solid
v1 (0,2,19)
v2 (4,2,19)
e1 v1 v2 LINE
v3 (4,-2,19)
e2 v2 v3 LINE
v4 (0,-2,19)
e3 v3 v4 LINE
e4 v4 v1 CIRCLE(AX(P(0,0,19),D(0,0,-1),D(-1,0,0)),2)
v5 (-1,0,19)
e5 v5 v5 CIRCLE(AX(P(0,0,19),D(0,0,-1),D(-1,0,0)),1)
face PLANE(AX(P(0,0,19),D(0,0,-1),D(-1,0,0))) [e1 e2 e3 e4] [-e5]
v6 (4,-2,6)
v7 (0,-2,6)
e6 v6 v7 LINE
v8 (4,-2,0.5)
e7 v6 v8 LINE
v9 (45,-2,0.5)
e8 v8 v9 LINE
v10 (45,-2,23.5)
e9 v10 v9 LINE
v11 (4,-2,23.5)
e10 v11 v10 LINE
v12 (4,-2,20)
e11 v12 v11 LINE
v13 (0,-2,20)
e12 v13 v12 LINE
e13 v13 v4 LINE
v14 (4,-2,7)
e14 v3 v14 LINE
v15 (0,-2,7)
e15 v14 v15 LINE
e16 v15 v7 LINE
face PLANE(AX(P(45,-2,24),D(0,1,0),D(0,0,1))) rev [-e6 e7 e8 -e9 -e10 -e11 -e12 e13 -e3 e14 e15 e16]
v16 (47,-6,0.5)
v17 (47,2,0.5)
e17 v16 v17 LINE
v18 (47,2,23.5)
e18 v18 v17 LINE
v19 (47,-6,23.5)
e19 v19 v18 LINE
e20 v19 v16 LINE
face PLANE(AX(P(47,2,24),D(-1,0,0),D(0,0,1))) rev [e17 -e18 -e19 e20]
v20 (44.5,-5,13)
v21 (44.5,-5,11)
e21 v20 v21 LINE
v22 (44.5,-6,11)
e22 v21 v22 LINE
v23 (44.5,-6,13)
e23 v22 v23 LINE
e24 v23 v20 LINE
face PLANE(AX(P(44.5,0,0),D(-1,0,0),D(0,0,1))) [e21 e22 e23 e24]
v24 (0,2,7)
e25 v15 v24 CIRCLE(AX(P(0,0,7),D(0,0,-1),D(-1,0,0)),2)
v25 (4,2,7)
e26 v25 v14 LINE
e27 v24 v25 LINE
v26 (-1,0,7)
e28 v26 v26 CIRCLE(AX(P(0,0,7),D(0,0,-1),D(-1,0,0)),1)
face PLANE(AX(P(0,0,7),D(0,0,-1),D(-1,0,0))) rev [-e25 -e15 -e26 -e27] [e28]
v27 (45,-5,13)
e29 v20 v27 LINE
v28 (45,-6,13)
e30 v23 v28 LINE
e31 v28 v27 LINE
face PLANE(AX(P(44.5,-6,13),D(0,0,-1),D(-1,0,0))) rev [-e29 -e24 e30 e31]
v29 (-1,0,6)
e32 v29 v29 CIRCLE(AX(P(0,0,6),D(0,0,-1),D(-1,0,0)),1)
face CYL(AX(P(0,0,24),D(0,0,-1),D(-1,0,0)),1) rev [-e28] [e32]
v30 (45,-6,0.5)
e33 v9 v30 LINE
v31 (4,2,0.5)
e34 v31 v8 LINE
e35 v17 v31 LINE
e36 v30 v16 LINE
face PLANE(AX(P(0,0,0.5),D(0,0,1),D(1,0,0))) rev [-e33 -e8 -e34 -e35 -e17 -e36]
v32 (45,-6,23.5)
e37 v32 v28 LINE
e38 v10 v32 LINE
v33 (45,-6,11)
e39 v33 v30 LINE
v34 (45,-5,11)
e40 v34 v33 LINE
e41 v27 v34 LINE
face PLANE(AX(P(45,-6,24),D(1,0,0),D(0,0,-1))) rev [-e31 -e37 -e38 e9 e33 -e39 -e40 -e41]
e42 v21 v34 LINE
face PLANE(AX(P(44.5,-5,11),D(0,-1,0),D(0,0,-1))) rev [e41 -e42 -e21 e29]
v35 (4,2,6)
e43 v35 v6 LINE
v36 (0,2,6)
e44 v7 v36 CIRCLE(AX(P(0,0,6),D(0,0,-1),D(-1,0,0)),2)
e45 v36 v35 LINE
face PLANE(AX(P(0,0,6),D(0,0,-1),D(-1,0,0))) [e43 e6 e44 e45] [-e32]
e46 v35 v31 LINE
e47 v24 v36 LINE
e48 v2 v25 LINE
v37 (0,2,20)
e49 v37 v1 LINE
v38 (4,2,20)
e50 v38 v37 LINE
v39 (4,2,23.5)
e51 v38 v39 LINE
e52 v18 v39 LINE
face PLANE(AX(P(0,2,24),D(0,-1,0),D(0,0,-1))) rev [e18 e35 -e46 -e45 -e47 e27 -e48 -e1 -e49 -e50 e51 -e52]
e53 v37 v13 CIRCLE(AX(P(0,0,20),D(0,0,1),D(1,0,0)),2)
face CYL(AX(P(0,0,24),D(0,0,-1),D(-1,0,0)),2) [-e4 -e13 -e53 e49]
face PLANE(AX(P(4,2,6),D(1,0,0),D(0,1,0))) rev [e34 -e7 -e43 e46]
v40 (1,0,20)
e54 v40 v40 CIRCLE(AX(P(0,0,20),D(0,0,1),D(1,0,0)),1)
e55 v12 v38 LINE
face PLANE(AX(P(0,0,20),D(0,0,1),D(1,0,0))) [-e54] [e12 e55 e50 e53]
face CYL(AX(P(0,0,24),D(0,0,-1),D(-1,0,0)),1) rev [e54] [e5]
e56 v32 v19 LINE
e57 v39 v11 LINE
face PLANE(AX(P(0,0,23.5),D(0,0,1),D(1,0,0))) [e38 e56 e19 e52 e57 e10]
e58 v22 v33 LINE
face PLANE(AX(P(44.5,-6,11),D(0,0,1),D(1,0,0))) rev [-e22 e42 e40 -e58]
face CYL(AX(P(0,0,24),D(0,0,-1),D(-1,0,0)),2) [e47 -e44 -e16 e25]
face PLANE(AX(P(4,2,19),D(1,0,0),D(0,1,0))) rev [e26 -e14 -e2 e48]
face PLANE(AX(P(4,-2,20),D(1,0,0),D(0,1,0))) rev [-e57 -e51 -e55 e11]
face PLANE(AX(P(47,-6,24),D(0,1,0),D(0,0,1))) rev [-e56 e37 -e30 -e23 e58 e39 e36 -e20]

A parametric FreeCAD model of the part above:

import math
import FreeCAD as App
import Part
import Sketcher
Q = App.Units.Quantity


def add_polygon(sketch, points):
    """Adds a closed chain of lines whose ends are joined by coincident constraints."""
    first, n = sketch.GeometryCount, len(points)
    for a, b in zip(points, points[1:] + points[:1]):
        sketch.addGeometry(Part.LineSegment(App.Vector(*a, 0), App.Vector(*b, 0)), False)
    for i in range(n):
        sketch.addConstraint(Sketcher.Constraint("Coincident", first + i, 2, first + (i + 1) % n, 1))

doc = App.newDocument("Part")
body = doc.addObject("PartDesign::Body", "Body")

sketch1 = body.newObject("Sketcher::SketchObject", "Sketch")
sketch1.AttachmentSupport = (doc.getObject("XY_Plane"), [""])
sketch1.MapMode = "FlatFace"
sketch1.addGeometry(Part.LineSegment(App.Vector(47, 2, 0), App.Vector(0, 2, 0)), False)
sketch1.addGeometry(Part.ArcOfCircle(Part.Circle(App.Vector(0, 0, 0), App.Vector(0, 0, 1), 2), math.radians(90), math.radians(270)), False)
sketch1.addGeometry(Part.LineSegment(App.Vector(0, -2, 0), App.Vector(45, -2, 0)), False)
sketch1.addGeometry(Part.LineSegment(App.Vector(45, -2, 0), App.Vector(45, -6, 0)), False)
sketch1.addGeometry(Part.LineSegment(App.Vector(45, -6, 0), App.Vector(47, -6, 0)), False)
sketch1.addGeometry(Part.LineSegment(App.Vector(47, -6, 0), App.Vector(47, 2, 0)), False)
sketch1.addGeometry(Part.Circle(App.Vector(0, 0, 0), App.Vector(0, 0, 1), 1), False)
sketch1.addConstraint(Sketcher.Constraint("Tangent", 0, 2, 1, 1))
sketch1.addConstraint(Sketcher.Constraint("Tangent", 1, 2, 2, 1))
sketch1.addConstraint(Sketcher.Constraint("Coincident", 2, 2, 3, 1))
sketch1.addConstraint(Sketcher.Constraint("Coincident", 3, 2, 4, 1))
sketch1.addConstraint(Sketcher.Constraint("Coincident", 4, 2, 5, 1))
sketch1.addConstraint(Sketcher.Constraint("Coincident", 5, 2, 0, 1))
sketch1.addConstraint(Sketcher.Constraint("Horizontal", 0))
sketch1.addConstraint(Sketcher.Constraint("Horizontal", 2))
sketch1.addConstraint(Sketcher.Constraint("Vertical", 3))
sketch1.addConstraint(Sketcher.Constraint("Horizontal", 4))
sketch1.addConstraint(Sketcher.Constraint("Vertical", 5))
sketch1.addConstraint(Sketcher.Constraint("Coincident", 1, 3, -1, 1))
sketch1.addConstraint(Sketcher.Constraint("Coincident", 6, 3, -1, 1))
sketch1.addConstraint(Sketcher.Constraint("Diameter", 6, Q("2 mm")))
sketch1.addConstraint(Sketcher.Constraint("Radius", 1, Q("2 mm")))
sketch1.addConstraint(Sketcher.Constraint("DistanceX", 0, 2, 0, 1, Q("47 mm")))
sketch1.addConstraint(Sketcher.Constraint("DistanceX", 2, 1, 2, 2, Q("45 mm")))
sketch1.addConstraint(Sketcher.Constraint("DistanceY", 3, 2, 3, 1, Q("4 mm")))
pad1 = body.newObject("PartDesign::Pad", "Pad")
pad1.Profile = sketch1
pad1.Length = 24

sketch2 = body.newObject("Sketcher::SketchObject", "Sketch001")
sketch2.AttachmentSupport = (doc.getObject("XY_Plane"), [""])
sketch2.MapMode = "FlatFace"
sketch2.AttachmentOffset = App.Placement(App.Vector(0, 0, 24), App.Rotation())
add_polygon(sketch2, [(-4, 2), (-4, -2), (4, -2), (4, 2)])
sketch2.addConstraint(Sketcher.Constraint("Vertical", 0))
sketch2.addConstraint(Sketcher.Constraint("Horizontal", 1))
sketch2.addConstraint(Sketcher.Constraint("Vertical", 2))
sketch2.addConstraint(Sketcher.Constraint("Horizontal", 3))
sketch2.addConstraint(Sketcher.Constraint("Symmetric", 0, 2, 2, 2, -1, 1))
sketch2.addConstraint(Sketcher.Constraint("DistanceX", 1, 1, 1, 2, Q("8 mm")))
sketch2.addConstraint(Sketcher.Constraint("DistanceY", 0, 2, 0, 1, Q("4 mm")))
pocket1 = body.newObject("PartDesign::Pocket", "Pocket")
pocket1.Profile = sketch2
pocket1.Length = 4

sketch3 = body.newObject("Sketcher::SketchObject", "Sketch002")
sketch3.AttachmentSupport = (doc.getObject("XY_Plane"), [""])
sketch3.MapMode = "FlatFace"
sketch3.addGeometry(Part.LineSegment(App.Vector(0, 2, 0), App.Vector(4, 2, 0)), False)
sketch3.addGeometry(Part.LineSegment(App.Vector(4, 2, 0), App.Vector(4, -2, 0)), False)
sketch3.addGeometry(Part.LineSegment(App.Vector(4, -2, 0), App.Vector(0, -2, 0)), False)
sketch3.addGeometry(Part.ArcOfCircle(Part.Circle(App.Vector(0, 0, 0), App.Vector(0, 0, 1), 2), math.radians(90), math.radians(270)), False)
sketch3.addConstraint(Sketcher.Constraint("Coincident", 0, 2, 1, 1))
sketch3.addConstraint(Sketcher.Constraint("Coincident", 1, 2, 2, 1))
sketch3.addConstraint(Sketcher.Constraint("Tangent", 2, 2, 3, 2))
sketch3.addConstraint(Sketcher.Constraint("Tangent", 3, 1, 0, 1))
sketch3.addConstraint(Sketcher.Constraint("Horizontal", 0))
sketch3.addConstraint(Sketcher.Constraint("Vertical", 1))
sketch3.addConstraint(Sketcher.Constraint("Horizontal", 2))
sketch3.addConstraint(Sketcher.Constraint("Coincident", 3, 3, -1, 1))
sketch3.addConstraint(Sketcher.Constraint("Equal", 2, 1))
sketch3.addConstraint(Sketcher.Constraint("Radius", 3, Q("2 mm")))
pocket2 = body.newObject("PartDesign::Pocket", "Pocket001")
pocket2.Profile = sketch3
pocket2.Length = 6
pocket2.Reversed = True

sketch4 = body.newObject("Sketcher::SketchObject", "Sketch003")
sketch4.AttachmentSupport = (doc.getObject("XY_Plane"), [""])
sketch4.MapMode = "FlatFace"
sketch4.AttachmentOffset = App.Placement(App.Vector(0, 0, 7), App.Rotation())
sketch4.addGeometry(Part.ArcOfCircle(Part.Circle(App.Vector(0, 0, 0), App.Vector(0, 0, 1), 2), math.radians(90), math.radians(270)), False)
sketch4.addGeometry(Part.LineSegment(App.Vector(0, 2, 0), App.Vector(4, 2, 0)), False)
sketch4.addGeometry(Part.LineSegment(App.Vector(4, 2, 0), App.Vector(4, -2, 0)), False)
sketch4.addGeometry(Part.LineSegment(App.Vector(4, -2, 0), App.Vector(0, -2, 0)), False)
sketch4.addConstraint(Sketcher.Constraint("Tangent", 0, 1, 1, 1))
sketch4.addConstraint(Sketcher.Constraint("Coincident", 1, 2, 2, 1))
sketch4.addConstraint(Sketcher.Constraint("Coincident", 2, 2, 3, 1))
sketch4.addConstraint(Sketcher.Constraint("Tangent", 3, 2, 0, 2))
sketch4.addConstraint(Sketcher.Constraint("Horizontal", 1))
sketch4.addConstraint(Sketcher.Constraint("Vertical", 2))
sketch4.addConstraint(Sketcher.Constraint("Horizontal", 3))
sketch4.addConstraint(Sketcher.Constraint("Coincident", 0, 3, -1, 1))
sketch4.addConstraint(Sketcher.Constraint("Equal", 3, 2))
sketch4.addConstraint(Sketcher.Constraint("Radius", 0, Q("2 mm")))
pocket3 = body.newObject("PartDesign::Pocket", "Pocket002")
pocket3.Profile = sketch4
pocket3.Length = 12
pocket3.Reversed = True

sketch5 = body.newObject("Sketcher::SketchObject", "Sketch004")
sketch5.AttachmentSupport = (doc.getObject("YZ_Plane"), [""])
sketch5.MapMode = "FlatFace"
sketch5.AttachmentOffset = App.Placement(App.Vector(0, 0, 45), App.Rotation())
add_polygon(sketch5, [(-5, 11), (-6, 11), (-6, 13), (-5, 13)])
sketch5.addConstraint(Sketcher.Constraint("Horizontal", 0))
sketch5.addConstraint(Sketcher.Constraint("Vertical", 1))
sketch5.addConstraint(Sketcher.Constraint("Horizontal", 2))
sketch5.addConstraint(Sketcher.Constraint("Vertical", 3))
sketch5.addConstraint(Sketcher.Constraint("DistanceX", 0, 2, 0, 1, Q("1 mm")))
sketch5.addConstraint(Sketcher.Constraint("DistanceY", 1, 1, 1, 2, Q("2 mm")))
sketch5.addConstraint(Sketcher.Constraint("DistanceX", 0, 2, -1, 1, Q("6 mm")))
sketch5.addConstraint(Sketcher.Constraint("DistanceY", -1, 1, 0, 2, Q("11 mm")))
pad2 = body.newObject("PartDesign::Pad", "Pad001")
pad2.Profile = sketch5
pad2.Length = 0.5
pad2.Reversed = True

sketch6 = body.newObject("Sketcher::SketchObject", "Sketch005")
sketch6.AttachmentSupport = (doc.getObject("XY_Plane"), [""])
sketch6.MapMode = "FlatFace"
add_polygon(sketch6, [(4, 2), (4, -2), (45, -2), (45, -6), (47, -6), (47, 2)])
sketch6.addConstraint(Sketcher.Constraint("Vertical", 0))
sketch6.addConstraint(Sketcher.Constraint("Horizontal", 1))
sketch6.addConstraint(Sketcher.Constraint("Vertical", 2))
sketch6.addConstraint(Sketcher.Constraint("Horizontal", 3))
sketch6.addConstraint(Sketcher.Constraint("Vertical", 4))
sketch6.addConstraint(Sketcher.Constraint("Horizontal", 5))
sketch6.addConstraint(Sketcher.Constraint("Equal", 0, 2))
sketch6.addConstraint(Sketcher.Constraint("DistanceX", 1, 1, 1, 2, Q("41 mm")))
sketch6.addConstraint(Sketcher.Constraint("DistanceX", 3, 1, 3, 2, Q("2 mm")))
sketch6.addConstraint(Sketcher.Constraint("DistanceY", 0, 2, 0, 1, Q("4 mm")))
sketch6.addConstraint(Sketcher.Constraint("DistanceX", -1, 1, 0, 2, Q("4 mm")))
sketch6.addConstraint(Sketcher.Constraint("DistanceY", 0, 2, -1, 1, Q("2 mm")))
pocket4 = body.newObject("PartDesign::Pocket", "Pocket003")
pocket4.Profile = sketch6
pocket4.Length = 0.5
pocket4.Reversed = True

sketch7 = body.newObject("Sketcher::SketchObject", "Sketch006")
sketch7.AttachmentSupport = (doc.getObject("XY_Plane"), [""])
sketch7.MapMode = "FlatFace"
sketch7.AttachmentOffset = App.Placement(App.Vector(0, 0, 24), App.Rotation())
add_polygon(sketch7, [(4, -2), (45, -2), (45, -6), (47, -6), (47, 2), (4, 2)])
sketch7.addConstraint(Sketcher.Constraint("Horizontal", 0))
sketch7.addConstraint(Sketcher.Constraint("Vertical", 1))
sketch7.addConstraint(Sketcher.Constraint("Horizontal", 2))
sketch7.addConstraint(Sketcher.Constraint("Vertical", 3))
sketch7.addConstraint(Sketcher.Constraint("Horizontal", 4))
sketch7.addConstraint(Sketcher.Constraint("Vertical", 5))
sketch7.addConstraint(Sketcher.Constraint("Equal", 1, 5))
sketch7.addConstraint(Sketcher.Constraint("DistanceX", 0, 1, 0, 2, Q("41 mm")))
sketch7.addConstraint(Sketcher.Constraint("DistanceX", 2, 1, 2, 2, Q("2 mm")))
sketch7.addConstraint(Sketcher.Constraint("DistanceY", 1, 2, 1, 1, Q("4 mm")))
sketch7.addConstraint(Sketcher.Constraint("DistanceX", -1, 1, 0, 2, Q("45 mm")))
sketch7.addConstraint(Sketcher.Constraint("DistanceY", 0, 2, -1, 1, Q("2 mm")))
pocket5 = body.newObject("PartDesign::Pocket", "Pocket004")
pocket5.Profile = sketch7
pocket5.Length = 0.5

doc.recompute()
